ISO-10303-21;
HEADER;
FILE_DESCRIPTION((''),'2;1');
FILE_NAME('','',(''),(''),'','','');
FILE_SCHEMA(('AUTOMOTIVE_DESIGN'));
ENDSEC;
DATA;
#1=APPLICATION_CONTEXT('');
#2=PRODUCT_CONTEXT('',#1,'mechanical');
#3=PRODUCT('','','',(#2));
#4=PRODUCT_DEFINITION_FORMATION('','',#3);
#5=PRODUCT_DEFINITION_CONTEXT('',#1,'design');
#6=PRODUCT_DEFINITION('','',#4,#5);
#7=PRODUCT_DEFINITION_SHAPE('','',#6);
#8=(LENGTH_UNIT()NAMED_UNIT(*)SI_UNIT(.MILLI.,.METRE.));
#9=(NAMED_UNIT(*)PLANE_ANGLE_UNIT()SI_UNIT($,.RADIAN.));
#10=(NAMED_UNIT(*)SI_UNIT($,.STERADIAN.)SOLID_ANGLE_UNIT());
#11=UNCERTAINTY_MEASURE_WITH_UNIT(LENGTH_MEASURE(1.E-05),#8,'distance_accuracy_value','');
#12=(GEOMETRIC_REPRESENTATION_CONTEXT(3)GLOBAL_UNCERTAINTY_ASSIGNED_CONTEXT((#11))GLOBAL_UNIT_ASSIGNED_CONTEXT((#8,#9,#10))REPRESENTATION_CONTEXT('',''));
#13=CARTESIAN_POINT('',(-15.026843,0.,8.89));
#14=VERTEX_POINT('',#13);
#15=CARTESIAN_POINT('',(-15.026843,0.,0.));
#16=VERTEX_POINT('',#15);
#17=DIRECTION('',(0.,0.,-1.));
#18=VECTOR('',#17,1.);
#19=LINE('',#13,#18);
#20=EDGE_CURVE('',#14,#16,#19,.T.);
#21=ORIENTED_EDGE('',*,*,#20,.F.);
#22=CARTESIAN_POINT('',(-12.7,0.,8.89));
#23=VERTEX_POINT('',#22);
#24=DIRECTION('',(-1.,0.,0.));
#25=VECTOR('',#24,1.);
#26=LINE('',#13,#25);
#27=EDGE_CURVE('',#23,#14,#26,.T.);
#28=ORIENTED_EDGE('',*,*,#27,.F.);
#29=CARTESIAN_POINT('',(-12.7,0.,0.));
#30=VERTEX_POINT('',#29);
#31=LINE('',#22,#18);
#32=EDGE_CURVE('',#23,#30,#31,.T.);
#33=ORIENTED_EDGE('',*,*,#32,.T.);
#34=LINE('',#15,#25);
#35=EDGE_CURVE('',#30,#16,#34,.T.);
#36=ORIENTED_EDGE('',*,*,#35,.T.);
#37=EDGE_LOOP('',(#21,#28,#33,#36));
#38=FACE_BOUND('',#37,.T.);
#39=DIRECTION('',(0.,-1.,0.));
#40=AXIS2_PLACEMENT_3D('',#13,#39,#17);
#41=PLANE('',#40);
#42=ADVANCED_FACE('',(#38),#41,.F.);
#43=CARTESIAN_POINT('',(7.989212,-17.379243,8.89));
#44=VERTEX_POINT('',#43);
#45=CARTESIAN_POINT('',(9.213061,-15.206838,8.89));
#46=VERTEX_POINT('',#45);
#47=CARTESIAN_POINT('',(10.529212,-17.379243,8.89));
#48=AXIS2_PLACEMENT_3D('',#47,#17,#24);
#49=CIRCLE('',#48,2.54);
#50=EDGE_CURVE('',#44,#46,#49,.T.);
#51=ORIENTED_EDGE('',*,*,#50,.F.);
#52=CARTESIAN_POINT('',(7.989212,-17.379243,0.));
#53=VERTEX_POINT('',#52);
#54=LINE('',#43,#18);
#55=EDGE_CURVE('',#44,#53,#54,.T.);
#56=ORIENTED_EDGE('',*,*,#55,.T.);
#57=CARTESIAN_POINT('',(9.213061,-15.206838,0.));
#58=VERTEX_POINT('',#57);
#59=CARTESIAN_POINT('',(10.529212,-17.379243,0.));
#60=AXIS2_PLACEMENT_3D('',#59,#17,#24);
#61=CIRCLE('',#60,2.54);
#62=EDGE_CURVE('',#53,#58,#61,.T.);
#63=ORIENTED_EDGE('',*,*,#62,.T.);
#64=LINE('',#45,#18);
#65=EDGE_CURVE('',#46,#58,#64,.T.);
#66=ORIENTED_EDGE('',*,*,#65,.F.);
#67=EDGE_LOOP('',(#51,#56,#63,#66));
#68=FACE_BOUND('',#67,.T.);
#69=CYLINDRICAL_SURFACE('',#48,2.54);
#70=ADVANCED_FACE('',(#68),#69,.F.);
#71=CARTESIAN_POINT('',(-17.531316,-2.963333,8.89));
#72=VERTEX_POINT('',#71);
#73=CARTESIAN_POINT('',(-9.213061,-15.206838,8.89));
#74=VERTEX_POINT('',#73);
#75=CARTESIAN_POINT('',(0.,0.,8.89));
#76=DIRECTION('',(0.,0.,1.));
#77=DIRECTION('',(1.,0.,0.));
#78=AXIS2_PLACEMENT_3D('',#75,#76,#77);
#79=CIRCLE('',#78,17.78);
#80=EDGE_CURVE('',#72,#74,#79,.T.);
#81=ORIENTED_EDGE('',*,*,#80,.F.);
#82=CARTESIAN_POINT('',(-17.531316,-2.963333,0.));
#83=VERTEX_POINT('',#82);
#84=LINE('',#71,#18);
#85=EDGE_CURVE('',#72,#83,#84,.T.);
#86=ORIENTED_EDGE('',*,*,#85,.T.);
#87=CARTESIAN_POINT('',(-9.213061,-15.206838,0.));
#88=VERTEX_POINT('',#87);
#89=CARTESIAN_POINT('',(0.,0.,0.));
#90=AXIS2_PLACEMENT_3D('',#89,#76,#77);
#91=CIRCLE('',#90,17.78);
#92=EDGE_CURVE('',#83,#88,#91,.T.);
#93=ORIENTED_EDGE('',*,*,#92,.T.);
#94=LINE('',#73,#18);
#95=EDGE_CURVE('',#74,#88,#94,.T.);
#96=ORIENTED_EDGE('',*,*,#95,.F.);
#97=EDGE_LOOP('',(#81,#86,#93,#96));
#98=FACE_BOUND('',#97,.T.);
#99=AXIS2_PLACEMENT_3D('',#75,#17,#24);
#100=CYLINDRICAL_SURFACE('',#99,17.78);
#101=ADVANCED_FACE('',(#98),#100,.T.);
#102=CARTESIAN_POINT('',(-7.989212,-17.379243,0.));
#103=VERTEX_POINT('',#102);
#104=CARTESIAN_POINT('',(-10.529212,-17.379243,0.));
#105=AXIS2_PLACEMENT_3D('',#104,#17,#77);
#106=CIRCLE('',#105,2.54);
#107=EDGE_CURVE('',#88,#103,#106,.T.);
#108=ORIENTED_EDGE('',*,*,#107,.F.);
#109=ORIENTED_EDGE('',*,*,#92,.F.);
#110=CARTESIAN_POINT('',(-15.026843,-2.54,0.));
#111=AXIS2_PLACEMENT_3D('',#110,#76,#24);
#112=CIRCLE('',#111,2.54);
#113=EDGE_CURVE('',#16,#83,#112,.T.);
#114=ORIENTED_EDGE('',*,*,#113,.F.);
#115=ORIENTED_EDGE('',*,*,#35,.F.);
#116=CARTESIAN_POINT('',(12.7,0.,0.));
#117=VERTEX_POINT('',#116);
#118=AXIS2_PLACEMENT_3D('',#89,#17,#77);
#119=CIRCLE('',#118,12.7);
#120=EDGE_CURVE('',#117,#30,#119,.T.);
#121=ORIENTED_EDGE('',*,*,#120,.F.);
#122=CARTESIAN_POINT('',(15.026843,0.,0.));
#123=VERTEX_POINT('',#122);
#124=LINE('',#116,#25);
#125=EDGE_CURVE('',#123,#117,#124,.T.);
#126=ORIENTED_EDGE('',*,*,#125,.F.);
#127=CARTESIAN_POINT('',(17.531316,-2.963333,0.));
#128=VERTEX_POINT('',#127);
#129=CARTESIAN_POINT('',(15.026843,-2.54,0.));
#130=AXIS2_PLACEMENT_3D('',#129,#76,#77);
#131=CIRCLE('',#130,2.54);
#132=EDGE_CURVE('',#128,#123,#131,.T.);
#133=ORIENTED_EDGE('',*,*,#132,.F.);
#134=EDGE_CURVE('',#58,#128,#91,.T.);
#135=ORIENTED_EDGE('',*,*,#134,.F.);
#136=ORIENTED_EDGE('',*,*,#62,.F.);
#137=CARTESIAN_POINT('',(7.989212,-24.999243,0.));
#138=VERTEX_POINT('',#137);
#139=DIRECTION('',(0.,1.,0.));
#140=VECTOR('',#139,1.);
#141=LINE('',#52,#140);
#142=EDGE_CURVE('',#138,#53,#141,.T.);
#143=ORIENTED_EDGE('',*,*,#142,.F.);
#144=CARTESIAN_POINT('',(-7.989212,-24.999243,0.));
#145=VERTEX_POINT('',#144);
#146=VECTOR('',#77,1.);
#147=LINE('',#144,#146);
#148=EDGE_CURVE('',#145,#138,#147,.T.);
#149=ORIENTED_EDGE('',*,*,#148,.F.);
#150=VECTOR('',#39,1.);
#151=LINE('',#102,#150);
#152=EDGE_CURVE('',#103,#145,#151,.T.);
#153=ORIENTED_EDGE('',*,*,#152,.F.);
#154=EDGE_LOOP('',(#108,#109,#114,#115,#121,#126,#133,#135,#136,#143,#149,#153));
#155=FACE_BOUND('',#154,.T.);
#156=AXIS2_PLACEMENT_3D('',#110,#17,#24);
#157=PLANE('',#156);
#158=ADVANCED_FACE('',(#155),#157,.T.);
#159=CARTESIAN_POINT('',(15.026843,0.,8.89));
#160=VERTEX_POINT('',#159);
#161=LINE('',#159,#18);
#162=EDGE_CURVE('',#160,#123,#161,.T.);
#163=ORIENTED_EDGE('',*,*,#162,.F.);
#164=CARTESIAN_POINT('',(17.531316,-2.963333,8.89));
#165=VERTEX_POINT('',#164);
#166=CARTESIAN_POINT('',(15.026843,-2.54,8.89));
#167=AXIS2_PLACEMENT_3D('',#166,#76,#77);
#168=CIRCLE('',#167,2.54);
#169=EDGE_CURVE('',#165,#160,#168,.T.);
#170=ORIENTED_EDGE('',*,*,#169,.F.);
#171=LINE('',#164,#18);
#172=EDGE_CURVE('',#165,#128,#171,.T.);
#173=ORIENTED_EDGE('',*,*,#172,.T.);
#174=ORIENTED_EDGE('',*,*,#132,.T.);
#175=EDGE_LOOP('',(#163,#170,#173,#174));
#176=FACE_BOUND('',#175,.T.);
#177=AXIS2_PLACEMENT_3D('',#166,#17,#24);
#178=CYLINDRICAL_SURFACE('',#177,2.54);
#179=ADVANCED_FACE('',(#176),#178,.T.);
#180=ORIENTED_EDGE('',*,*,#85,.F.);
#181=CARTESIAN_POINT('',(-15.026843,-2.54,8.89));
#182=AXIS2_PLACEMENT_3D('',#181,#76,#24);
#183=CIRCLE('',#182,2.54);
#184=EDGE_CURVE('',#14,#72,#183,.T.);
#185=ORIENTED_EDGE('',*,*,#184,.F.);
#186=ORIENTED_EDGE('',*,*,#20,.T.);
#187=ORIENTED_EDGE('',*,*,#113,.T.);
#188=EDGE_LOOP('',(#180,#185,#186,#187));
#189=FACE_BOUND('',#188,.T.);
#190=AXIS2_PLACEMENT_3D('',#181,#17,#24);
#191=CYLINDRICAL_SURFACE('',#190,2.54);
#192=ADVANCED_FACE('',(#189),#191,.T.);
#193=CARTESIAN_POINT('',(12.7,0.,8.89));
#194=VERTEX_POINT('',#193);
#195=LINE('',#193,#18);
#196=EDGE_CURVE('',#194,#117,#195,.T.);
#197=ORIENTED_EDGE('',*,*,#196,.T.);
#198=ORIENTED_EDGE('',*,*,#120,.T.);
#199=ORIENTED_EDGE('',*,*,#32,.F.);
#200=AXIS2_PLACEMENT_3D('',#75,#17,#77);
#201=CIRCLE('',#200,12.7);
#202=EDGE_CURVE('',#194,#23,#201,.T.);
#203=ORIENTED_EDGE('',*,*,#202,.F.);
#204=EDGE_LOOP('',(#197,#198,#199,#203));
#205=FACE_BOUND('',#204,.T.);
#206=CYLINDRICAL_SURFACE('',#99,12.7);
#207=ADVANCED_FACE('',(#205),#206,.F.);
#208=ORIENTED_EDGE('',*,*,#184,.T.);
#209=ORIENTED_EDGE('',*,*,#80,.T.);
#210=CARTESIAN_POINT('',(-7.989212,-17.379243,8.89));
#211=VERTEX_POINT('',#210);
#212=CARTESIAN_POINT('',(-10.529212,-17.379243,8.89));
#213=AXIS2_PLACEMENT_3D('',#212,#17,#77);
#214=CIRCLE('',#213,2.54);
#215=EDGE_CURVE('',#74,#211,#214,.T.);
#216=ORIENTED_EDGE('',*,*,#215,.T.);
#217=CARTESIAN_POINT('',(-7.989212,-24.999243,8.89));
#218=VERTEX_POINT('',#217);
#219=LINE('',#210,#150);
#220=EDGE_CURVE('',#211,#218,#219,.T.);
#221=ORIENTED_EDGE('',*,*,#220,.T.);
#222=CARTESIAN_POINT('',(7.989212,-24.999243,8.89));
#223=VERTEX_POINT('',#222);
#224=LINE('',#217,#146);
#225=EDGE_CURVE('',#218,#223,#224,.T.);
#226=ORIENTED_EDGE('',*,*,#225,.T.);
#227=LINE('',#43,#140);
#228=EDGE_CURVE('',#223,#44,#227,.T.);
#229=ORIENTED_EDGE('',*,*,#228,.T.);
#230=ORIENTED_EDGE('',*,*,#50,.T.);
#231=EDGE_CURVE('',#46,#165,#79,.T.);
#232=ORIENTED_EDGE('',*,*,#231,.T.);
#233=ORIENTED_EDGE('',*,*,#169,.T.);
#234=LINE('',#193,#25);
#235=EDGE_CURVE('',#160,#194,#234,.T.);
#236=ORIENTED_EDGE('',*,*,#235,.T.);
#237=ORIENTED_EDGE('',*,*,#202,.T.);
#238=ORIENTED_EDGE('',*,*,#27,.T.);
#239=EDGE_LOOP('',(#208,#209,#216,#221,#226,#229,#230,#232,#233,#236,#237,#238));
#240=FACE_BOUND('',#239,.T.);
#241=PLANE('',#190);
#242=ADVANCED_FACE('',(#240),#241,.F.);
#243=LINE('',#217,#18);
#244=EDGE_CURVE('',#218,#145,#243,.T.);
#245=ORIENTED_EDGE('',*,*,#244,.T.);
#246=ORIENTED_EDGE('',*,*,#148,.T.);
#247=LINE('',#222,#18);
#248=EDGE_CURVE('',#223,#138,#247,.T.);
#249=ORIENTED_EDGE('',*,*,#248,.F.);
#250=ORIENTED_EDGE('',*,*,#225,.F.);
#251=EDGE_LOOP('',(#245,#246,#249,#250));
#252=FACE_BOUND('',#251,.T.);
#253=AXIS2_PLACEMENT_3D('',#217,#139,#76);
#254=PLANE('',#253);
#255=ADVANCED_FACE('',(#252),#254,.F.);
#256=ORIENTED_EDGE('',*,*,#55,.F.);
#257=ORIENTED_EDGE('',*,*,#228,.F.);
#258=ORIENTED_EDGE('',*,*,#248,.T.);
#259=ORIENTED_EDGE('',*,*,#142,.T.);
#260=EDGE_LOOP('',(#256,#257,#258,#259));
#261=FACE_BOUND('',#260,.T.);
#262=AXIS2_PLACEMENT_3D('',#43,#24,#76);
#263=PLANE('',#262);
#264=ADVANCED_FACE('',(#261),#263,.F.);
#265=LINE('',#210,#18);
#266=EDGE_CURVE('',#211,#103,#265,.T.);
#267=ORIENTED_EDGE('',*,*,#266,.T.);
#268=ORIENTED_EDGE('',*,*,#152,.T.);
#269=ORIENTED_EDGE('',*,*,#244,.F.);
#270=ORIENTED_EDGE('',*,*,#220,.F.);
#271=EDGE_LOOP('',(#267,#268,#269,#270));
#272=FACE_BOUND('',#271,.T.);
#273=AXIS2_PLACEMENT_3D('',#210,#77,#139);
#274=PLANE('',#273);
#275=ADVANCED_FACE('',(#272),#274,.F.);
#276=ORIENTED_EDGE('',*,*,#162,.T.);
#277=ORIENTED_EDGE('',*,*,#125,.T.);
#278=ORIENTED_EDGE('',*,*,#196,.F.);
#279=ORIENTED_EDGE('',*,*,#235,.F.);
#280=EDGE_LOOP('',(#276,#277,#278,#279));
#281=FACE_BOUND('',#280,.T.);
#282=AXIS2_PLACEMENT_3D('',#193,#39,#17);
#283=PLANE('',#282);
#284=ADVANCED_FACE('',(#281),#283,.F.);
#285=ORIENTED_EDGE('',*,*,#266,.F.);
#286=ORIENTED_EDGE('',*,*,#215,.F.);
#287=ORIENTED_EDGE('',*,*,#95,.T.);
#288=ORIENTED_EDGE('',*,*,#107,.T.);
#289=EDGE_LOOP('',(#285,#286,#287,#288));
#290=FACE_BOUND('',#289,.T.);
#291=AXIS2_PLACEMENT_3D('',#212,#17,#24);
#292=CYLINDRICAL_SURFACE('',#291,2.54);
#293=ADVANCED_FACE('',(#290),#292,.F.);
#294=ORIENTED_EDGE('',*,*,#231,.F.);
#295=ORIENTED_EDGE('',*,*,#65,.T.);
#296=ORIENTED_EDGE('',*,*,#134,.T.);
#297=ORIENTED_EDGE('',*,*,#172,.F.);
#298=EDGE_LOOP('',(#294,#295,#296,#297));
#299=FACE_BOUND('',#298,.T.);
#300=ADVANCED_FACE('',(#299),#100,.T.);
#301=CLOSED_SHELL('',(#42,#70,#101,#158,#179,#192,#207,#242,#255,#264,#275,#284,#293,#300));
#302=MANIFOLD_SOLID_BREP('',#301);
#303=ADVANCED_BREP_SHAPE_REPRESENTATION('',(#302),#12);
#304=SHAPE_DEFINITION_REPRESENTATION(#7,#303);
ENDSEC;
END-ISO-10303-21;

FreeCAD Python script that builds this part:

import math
import FreeCAD as App
import Part
import Sketcher
from FreeCAD import Vector
Q = App.Units.Quantity

doc = App.newDocument("Part")
body = doc.addObject("PartDesign::Body", "Body")

# Sketch on XY plane
sketch1 = body.newObject("Sketcher::SketchObject", "Sketch")
sketch1.AttachmentSupport = (doc.getObject("XY_Plane"), [""])
sketch1.MapMode = "FlatFace"
sketch1.addGeometry([
    Part.LineSegment(Vector(-12.7, 0, 0), Vector(-15, 0, 0)),  # 0
    Part.ArcOfCircle(Part.Circle(Vector(-15, -2.5, 0), Vector(0, 0, 1), 2.5), math.radians(90), math.radians(190)),  # 1
    Part.ArcOfCircle(Part.Circle(Vector(0, 0, 0), Vector(0, 0, 1), 17.8), math.radians(-170), math.radians(-121)),  # 2
    Part.ArcOfCircle(Part.Circle(Vector(-10.5, -17.4, 0), Vector(0, 0, 1), 2.5), math.radians(0), math.radians(59)),  # 3
    Part.LineSegment(Vector(-8, -17.4, 0), Vector(-8, -25, 0)),  # 4
    Part.LineSegment(Vector(-8, -25, 0), Vector(8, -25, 0)),  # 5
    Part.LineSegment(Vector(8, -25, 0), Vector(8, -17.4, 0)),  # 6
    Part.ArcOfCircle(Part.Circle(Vector(10.5, -17.4, 0), Vector(0, 0, 1), 2.5), math.radians(121), math.radians(180)),  # 7
    Part.ArcOfCircle(Part.Circle(Vector(0, 0, 0), Vector(0, 0, 1), 17.8), math.radians(-59), math.radians(-10)),  # 8
    Part.ArcOfCircle(Part.Circle(Vector(15, -2.5, 0), Vector(0, 0, 1), 2.5), math.radians(-10), math.radians(90)),  # 9
    Part.LineSegment(Vector(15, 0, 0), Vector(12.7, 0, 0)),  # 10
    Part.ArcOfCircle(Part.Circle(Vector(0, 0, 0), Vector(0, 0, 1), 12.7), math.radians(180), math.radians(360)),  # 11
], False)
sketch1.addConstraint([
    Sketcher.Constraint("Tangent", 0, 2, 1, 1),
    Sketcher.Constraint("Tangent", 1, 2, 2, 1),
    Sketcher.Constraint("Tangent", 2, 2, 3, 2),
    Sketcher.Constraint("Tangent", 3, 1, 4, 1),
    Sketcher.Constraint("Coincident", 4, 2, 5, 1),
    Sketcher.Constraint("Coincident", 5, 2, 6, 1),
    Sketcher.Constraint("Tangent", 6, 2, 7, 2),
    Sketcher.Constraint("Tangent", 7, 1, 8, 1),
    Sketcher.Constraint("Tangent", 8, 2, 9, 1),
    Sketcher.Constraint("Tangent", 9, 2, 10, 1),
    Sketcher.Constraint("Coincident", 10, 2, 11, 2),
    Sketcher.Constraint("Coincident", 11, 1, 0, 1),
    Sketcher.Constraint("Horizontal", 0),
    Sketcher.Constraint("Vertical", 4),
    Sketcher.Constraint("Horizontal", 5),
    Sketcher.Constraint("Vertical", 6),
    Sketcher.Constraint("Horizontal", 10),
    Sketcher.Constraint("Coincident", 2, 3, -1, 1),
    Sketcher.Constraint("Coincident", 8, 3, -1, 1),
    Sketcher.Constraint("Coincident", 11, 3, -1, 1),
    Sketcher.Constraint("Equal", 1, 3),
    Sketcher.Constraint("Equal", 3, 7),
    Sketcher.Constraint("Equal", 2, 8),
    Sketcher.Constraint("Equal", 7, 9),
    Sketcher.Constraint("Symmetric", 0, 2, 9, 2, -1, 1),
    Sketcher.Constraint("Horizontal", 3, 3, 7, 3),
    Sketcher.Constraint("Radius", 1, Q("0.1 in")),
    Sketcher.Constraint("Radius", 2, Q("0.7 in")),
    Sketcher.Constraint("Radius", 11, Q("0.5 in")),
    Sketcher.Constraint("DistanceY", 4, 2, 4, 1, Q("0.3 in")),
    Sketcher.Constraint("DistanceX", 5, 1, 5, 2, Q("15.978425 mm")),
])
pad1 = body.newObject("PartDesign::Pad", "Pad")
pad1.Profile = sketch1
pad1.Length = Q("0.35 in")

doc.recompute()
